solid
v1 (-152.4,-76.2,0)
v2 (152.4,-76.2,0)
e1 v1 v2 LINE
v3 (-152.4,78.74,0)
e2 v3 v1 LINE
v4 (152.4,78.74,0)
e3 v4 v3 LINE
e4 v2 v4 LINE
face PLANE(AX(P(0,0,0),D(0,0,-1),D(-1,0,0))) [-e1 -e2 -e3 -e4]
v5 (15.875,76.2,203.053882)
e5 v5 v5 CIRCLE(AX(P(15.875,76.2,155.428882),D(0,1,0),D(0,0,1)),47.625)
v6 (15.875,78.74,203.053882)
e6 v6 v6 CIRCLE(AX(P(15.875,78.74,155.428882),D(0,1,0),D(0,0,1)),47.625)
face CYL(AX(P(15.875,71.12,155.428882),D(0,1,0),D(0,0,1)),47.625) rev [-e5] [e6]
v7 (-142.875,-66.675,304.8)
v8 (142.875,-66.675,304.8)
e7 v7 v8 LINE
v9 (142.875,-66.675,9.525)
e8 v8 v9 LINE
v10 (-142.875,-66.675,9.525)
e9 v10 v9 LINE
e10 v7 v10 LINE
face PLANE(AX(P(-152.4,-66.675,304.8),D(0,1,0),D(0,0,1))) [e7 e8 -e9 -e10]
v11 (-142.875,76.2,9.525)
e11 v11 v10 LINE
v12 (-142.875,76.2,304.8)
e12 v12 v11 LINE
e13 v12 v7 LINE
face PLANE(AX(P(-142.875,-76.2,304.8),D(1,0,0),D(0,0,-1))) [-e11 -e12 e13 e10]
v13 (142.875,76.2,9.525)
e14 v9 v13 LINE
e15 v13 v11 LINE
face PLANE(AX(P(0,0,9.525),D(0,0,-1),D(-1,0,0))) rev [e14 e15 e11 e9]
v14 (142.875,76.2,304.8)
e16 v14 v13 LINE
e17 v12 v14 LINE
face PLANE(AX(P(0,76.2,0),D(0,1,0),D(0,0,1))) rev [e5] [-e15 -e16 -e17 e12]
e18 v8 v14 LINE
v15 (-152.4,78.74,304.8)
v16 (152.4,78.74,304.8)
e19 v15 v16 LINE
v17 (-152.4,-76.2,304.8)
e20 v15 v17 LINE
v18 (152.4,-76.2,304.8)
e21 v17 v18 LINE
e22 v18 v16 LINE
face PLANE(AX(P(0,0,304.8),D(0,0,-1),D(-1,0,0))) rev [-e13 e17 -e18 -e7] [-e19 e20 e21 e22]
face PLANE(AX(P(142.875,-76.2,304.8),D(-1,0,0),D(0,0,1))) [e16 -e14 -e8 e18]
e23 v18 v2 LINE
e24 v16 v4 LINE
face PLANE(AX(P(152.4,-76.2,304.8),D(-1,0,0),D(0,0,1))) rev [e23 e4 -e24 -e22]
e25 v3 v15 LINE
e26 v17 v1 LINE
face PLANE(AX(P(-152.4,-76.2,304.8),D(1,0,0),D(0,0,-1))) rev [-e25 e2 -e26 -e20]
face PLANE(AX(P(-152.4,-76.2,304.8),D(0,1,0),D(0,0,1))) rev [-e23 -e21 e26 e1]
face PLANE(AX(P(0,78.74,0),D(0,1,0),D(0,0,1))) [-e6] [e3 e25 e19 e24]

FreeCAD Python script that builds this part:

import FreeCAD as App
import Part
import Sketcher

V = App.Vector
Q = App.Units.Quantity


def faces_at(feature, points):
    """Names of the faces that lie closest to the given points."""
    faces = feature.Shape.Faces
    near = lambda p: min(range(len(faces)), key=lambda i: faces[i].distToShape(Part.Vertex(*p))[0])
    return sorted({f"Face{near(p) + 1}" for p in points})

doc = App.newDocument("Part")
body = doc.addObject("PartDesign::Body", "Body")

# Sketch on XY plane
sketch1 = body.newObject("Sketcher::SketchObject", "Sketch")
sketch1.AttachmentSupport = (doc.getObject("XY_Plane"), [""])
sketch1.MapMode = "FlatFace"
sketch1.addGeometry([
    Part.LineSegment(V(-152, 76, 0), V(-152, -76, 0)),
    Part.LineSegment(V(-152, -76, 0), V(152, -76, 0)),
    Part.LineSegment(V(152, -76, 0), V(152, 76, 0)),
    Part.LineSegment(V(152, 76, 0), V(-152, 76, 0)),
], False)
sketch1.addConstraint([
    Sketcher.Constraint("Coincident", 0, 2, 1, 1),
    Sketcher.Constraint("Coincident", 1, 2, 2, 1),
    Sketcher.Constraint("Coincident", 2, 2, 3, 1),
    Sketcher.Constraint("Coincident", 3, 2, 0, 1),
    Sketcher.Constraint("Vertical", 0),
    Sketcher.Constraint("Horizontal", 1),
    Sketcher.Constraint("Vertical", 2),
    Sketcher.Constraint("Horizontal", 3),
    Sketcher.Constraint("Symmetric", 0, 2, 2, 2, -1, 1),
    Sketcher.Constraint("DistanceX", 1, 1, 1, 2, Q("12 in")),
    Sketcher.Constraint("DistanceY", 0, 2, 0, 1, Q("6 in")),
])
pad1 = body.newObject("PartDesign::Pad", "Pad")
pad1.Profile = sketch1
pad1.Length = Q("12 in")
doc.recompute()

thickness = body.newObject("PartDesign::Thickness", "Thickness")
thickness.Base = (pad1, faces_at(pad1, [(0, 0, 304.8), (0, 76.2, 152.4)]))
thickness.Value = Q("0.375 in")
thickness.Reversed = True
thickness.Join = "Intersection"

# Sketch on XZ plane
sketch2 = body.newObject("Sketcher::SketchObject", "Sketch001")
sketch2.AttachmentSupport = (doc.getObject("XZ_Plane"), [""])
sketch2.MapMode = "FlatFace"
sketch2.AttachmentOffset = App.Placement(V(0, 0, -3 * 25.4), App.Rotation())
sketch2.addGeometry([
    Part.LineSegment(V(152, 305, 0), V(152, 0, 0)),
    Part.LineSegment(V(152, 0, 0), V(-152, 0, 0)),
    Part.LineSegment(V(-152, 0, 0), V(-152, 305, 0)),
    Part.LineSegment(V(-152, 305, 0), V(152, 305, 0)),
], False)
sketch2.addConstraint([
    Sketcher.Constraint("Coincident", 0, 2, 1, 1),
    Sketcher.Constraint("Coincident", 1, 2, 2, 1),
    Sketcher.Constraint("Coincident", 2, 2, 3, 1),
    Sketcher.Constraint("Coincident", 3, 2, 0, 1),
    Sketcher.Constraint("Vertical", 0),
    Sketcher.Constraint("Horizontal", 1),
    Sketcher.Constraint("Vertical", 2),
    Sketcher.Constraint("Horizontal", 3),
    Sketcher.Constraint("Symmetric", 0, 2, 1, 2, -1, 1),
    Sketcher.Constraint("Equal", 3, 0),
    Sketcher.Constraint("DistanceX", 1, 2, 1, 1, Q("12 in")),
])
pad2 = body.newObject("PartDesign::Pad", "Pad001")
pad2.Profile = sketch2
pad2.Length = Q("0.1 in")
pad2.Reversed = True

# Sketch on XZ plane
sketch3 = body.newObject("Sketcher::SketchObject", "Sketch002")
sketch3.AttachmentSupport = (doc.getObject("XZ_Plane"), [""])
sketch3.MapMode = "FlatFace"
sketch3.AttachmentOffset = App.Placement(V(0, 0, -3.1 * 25.4), App.Rotation())
sketch3.addGeometry(Part.Circle(V(16, 155, 0), V(0, 0, 1), 48), False)
sketch3.addConstraint([
    Sketcher.Constraint("Diameter", 0, Q("3.75 in")),
    Sketcher.Constraint("DistanceX", -1, 1, 0, 3, Q("0.625 in")),
    Sketcher.Constraint("DistanceY", -1, 1, 0, 3, Q("155.428882 mm")),
])
pocket1 = body.newObject("PartDesign::Pocket", "Pocket")
pocket1.Profile = sketch3
pocket1.Length = Q("0.3 in")
pocket1.Reversed = True

doc.recompute()
